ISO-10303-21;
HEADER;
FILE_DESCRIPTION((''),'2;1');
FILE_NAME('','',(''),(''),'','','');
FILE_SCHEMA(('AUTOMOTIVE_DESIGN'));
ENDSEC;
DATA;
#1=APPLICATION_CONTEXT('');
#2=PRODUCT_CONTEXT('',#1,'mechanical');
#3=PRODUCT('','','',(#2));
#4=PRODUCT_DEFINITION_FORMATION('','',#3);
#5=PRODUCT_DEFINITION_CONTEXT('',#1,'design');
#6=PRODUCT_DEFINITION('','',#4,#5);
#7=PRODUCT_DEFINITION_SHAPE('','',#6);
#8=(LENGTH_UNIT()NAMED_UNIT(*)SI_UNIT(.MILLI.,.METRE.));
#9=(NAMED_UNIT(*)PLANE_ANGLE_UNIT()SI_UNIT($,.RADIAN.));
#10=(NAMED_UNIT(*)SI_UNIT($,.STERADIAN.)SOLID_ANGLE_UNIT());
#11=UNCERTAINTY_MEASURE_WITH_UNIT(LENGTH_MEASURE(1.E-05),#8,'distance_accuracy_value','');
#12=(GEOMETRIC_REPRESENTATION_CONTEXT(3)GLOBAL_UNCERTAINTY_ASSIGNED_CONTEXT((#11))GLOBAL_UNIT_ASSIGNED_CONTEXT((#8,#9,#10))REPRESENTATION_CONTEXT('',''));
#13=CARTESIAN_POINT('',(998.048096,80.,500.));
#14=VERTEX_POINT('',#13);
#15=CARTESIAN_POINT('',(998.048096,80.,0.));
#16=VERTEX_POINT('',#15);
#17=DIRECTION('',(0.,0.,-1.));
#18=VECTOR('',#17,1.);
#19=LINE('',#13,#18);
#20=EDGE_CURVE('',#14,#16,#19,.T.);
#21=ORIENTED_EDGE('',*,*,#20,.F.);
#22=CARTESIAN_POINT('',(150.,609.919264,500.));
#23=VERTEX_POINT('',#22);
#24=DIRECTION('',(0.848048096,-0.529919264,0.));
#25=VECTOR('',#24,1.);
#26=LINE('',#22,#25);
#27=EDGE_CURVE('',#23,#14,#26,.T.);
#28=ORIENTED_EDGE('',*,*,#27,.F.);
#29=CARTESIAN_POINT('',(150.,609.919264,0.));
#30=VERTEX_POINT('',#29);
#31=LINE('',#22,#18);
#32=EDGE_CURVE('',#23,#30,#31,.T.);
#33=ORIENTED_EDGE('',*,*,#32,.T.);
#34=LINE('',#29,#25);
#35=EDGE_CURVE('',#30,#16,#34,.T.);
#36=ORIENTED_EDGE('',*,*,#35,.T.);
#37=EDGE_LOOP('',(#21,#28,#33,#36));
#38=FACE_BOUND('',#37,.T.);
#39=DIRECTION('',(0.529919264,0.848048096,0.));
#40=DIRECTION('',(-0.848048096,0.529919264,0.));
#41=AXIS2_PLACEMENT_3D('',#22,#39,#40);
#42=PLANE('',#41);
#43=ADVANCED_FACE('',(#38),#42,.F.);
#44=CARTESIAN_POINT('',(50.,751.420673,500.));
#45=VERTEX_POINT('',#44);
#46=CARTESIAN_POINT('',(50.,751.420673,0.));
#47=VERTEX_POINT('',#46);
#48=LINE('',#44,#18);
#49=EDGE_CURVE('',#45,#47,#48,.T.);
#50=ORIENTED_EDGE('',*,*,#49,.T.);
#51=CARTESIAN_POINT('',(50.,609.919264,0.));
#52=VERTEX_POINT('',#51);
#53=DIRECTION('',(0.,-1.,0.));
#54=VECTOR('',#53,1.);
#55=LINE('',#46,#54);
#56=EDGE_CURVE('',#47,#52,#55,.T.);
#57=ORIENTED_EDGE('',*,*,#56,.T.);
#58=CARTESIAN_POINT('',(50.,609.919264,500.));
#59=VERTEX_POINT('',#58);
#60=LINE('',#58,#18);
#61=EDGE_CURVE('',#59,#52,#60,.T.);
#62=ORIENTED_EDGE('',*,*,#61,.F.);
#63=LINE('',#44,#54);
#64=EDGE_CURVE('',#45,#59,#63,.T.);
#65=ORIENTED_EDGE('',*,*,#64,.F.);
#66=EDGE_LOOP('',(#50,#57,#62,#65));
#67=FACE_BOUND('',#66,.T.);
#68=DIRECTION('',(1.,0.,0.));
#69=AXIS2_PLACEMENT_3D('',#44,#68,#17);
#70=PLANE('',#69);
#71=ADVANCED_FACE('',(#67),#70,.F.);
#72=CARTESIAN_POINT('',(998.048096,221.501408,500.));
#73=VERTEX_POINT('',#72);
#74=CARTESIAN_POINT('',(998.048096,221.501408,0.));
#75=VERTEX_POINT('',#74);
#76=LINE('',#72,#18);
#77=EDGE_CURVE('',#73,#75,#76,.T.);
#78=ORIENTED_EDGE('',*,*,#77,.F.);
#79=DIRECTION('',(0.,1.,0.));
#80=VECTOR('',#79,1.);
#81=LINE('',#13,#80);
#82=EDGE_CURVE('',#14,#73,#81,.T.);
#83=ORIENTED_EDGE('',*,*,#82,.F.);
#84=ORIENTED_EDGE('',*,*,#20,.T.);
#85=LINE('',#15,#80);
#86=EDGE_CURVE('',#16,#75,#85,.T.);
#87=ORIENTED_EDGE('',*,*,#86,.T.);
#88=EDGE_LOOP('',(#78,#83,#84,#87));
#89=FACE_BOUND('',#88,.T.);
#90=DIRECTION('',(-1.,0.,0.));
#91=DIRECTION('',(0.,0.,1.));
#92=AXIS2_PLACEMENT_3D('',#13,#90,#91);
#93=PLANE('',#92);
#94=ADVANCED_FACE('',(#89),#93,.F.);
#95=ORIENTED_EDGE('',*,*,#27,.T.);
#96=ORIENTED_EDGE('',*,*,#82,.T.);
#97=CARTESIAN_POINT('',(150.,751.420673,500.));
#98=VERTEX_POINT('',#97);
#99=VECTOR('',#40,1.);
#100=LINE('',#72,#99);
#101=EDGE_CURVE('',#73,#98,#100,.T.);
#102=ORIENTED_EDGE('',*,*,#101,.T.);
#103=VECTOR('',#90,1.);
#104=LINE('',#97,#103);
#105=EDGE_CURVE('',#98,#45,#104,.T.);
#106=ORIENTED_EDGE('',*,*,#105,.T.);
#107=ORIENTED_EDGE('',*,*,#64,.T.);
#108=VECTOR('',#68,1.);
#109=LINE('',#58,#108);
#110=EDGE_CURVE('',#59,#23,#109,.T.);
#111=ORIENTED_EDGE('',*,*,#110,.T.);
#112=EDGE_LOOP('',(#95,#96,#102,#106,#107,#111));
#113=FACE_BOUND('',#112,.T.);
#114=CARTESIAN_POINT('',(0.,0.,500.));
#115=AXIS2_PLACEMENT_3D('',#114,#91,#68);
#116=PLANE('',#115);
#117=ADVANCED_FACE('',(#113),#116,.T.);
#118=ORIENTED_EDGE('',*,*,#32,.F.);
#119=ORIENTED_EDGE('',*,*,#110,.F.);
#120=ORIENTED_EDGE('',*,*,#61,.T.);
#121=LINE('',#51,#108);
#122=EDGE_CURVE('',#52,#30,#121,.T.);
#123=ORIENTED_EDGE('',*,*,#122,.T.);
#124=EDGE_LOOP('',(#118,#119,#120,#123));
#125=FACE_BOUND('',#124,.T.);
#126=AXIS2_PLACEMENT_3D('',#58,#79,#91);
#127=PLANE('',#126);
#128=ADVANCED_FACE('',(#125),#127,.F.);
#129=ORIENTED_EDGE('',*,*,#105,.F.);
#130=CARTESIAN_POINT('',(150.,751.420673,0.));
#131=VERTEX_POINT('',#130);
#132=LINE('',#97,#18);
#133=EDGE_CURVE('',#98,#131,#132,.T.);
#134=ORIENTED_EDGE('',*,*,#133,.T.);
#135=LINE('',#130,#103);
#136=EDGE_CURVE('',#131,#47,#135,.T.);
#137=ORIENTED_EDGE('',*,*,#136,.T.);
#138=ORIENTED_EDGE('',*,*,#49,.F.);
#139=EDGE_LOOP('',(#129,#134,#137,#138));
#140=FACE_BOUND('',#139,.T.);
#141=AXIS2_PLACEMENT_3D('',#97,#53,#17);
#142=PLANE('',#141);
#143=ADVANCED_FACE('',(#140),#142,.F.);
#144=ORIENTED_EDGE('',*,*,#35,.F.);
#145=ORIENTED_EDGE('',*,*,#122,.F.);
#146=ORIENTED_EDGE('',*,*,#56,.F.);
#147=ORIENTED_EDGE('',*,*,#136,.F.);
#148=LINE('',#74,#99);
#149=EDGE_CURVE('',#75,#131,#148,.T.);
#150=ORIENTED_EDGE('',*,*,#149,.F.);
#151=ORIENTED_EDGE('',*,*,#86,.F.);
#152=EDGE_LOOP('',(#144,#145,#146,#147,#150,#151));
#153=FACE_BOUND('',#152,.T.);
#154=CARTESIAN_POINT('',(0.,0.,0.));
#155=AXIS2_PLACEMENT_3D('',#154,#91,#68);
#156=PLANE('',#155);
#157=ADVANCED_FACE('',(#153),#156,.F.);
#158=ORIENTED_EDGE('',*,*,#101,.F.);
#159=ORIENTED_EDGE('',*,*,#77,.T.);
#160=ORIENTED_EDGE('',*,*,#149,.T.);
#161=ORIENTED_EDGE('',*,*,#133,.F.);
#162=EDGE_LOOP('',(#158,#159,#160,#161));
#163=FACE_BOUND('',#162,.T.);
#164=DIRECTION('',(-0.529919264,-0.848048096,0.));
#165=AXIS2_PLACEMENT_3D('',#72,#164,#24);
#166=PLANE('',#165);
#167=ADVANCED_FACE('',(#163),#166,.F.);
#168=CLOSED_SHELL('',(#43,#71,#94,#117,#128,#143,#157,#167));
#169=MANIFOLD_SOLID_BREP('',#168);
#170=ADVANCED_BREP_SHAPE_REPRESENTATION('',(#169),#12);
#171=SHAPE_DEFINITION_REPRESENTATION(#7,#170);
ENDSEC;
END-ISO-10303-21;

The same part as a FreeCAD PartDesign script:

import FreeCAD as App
import Part
import Sketcher
Q = App.Units.Quantity

doc = App.newDocument("Part")
body = doc.addObject("PartDesign::Body", "Body")

# Sketch on XY plane
sketch1 = doc.addObject("Sketcher::SketchObject", "Sketch")
body.addObject(sketch1)
sketch1.AttachmentSupport = (doc.XY_Plane, [""])
sketch1.MapMode = "FlatFace"
sketch1.addGeometry([
    Part.LineSegment(App.Vector(50, 610, 0), App.Vector(150, 610, 0)),  # 0
    Part.LineSegment(App.Vector(150, 610, 0), App.Vector(998, 80, 0)),  # 1
    Part.LineSegment(App.Vector(998, 80, 0), App.Vector(998, 222, 0)),  # 2
    Part.LineSegment(App.Vector(998, 222, 0), App.Vector(150, 751, 0)),  # 3
    Part.LineSegment(App.Vector(150, 751, 0), App.Vector(50, 751, 0)),  # 4
    Part.LineSegment(App.Vector(50, 751, 0), App.Vector(50, 610, 0)),  # 5
], False)
sketch1.addConstraint([
    Sketcher.Constraint("Coincident", 0, 2, 1, 1),
    Sketcher.Constraint("Coincident", 1, 2, 2, 1),
    Sketcher.Constraint("Coincident", 2, 2, 3, 1),
    Sketcher.Constraint("Coincident", 3, 2, 4, 1),
    Sketcher.Constraint("Coincident", 4, 2, 5, 1),
    Sketcher.Constraint("Coincident", 5, 2, 0, 1),
    Sketcher.Constraint("Horizontal", 0),
    Sketcher.Constraint("Vertical", 2),
    Sketcher.Constraint("Horizontal", 4),
    Sketcher.Constraint("Vertical", 5),
    Sketcher.Constraint("Parallel", 1, 3),
    Sketcher.Constraint("Vertical", 0, 2, 3, 2),
    Sketcher.Constraint("DistanceX", 0, 1, 0, 2, 100.0),
    Sketcher.Constraint("Angle", 1, Q("-32 deg")),
    Sketcher.Constraint("Distance", 1, 1000.0),
    Sketcher.Constraint("DistanceX", -1, 1, 0, 2, 150.0),
    Sketcher.Constraint("DistanceY", -1, 1, 1, 2, 80.0),
    Sketcher.Constraint("DistanceY", 2, 1, 2, 2, 141.501408),
])
pad1 = doc.addObject("PartDesign::Pad", "Pad")
body.addObject(pad1)
pad1.Profile = sketch1
pad1.Length = 500

doc.recompute()
